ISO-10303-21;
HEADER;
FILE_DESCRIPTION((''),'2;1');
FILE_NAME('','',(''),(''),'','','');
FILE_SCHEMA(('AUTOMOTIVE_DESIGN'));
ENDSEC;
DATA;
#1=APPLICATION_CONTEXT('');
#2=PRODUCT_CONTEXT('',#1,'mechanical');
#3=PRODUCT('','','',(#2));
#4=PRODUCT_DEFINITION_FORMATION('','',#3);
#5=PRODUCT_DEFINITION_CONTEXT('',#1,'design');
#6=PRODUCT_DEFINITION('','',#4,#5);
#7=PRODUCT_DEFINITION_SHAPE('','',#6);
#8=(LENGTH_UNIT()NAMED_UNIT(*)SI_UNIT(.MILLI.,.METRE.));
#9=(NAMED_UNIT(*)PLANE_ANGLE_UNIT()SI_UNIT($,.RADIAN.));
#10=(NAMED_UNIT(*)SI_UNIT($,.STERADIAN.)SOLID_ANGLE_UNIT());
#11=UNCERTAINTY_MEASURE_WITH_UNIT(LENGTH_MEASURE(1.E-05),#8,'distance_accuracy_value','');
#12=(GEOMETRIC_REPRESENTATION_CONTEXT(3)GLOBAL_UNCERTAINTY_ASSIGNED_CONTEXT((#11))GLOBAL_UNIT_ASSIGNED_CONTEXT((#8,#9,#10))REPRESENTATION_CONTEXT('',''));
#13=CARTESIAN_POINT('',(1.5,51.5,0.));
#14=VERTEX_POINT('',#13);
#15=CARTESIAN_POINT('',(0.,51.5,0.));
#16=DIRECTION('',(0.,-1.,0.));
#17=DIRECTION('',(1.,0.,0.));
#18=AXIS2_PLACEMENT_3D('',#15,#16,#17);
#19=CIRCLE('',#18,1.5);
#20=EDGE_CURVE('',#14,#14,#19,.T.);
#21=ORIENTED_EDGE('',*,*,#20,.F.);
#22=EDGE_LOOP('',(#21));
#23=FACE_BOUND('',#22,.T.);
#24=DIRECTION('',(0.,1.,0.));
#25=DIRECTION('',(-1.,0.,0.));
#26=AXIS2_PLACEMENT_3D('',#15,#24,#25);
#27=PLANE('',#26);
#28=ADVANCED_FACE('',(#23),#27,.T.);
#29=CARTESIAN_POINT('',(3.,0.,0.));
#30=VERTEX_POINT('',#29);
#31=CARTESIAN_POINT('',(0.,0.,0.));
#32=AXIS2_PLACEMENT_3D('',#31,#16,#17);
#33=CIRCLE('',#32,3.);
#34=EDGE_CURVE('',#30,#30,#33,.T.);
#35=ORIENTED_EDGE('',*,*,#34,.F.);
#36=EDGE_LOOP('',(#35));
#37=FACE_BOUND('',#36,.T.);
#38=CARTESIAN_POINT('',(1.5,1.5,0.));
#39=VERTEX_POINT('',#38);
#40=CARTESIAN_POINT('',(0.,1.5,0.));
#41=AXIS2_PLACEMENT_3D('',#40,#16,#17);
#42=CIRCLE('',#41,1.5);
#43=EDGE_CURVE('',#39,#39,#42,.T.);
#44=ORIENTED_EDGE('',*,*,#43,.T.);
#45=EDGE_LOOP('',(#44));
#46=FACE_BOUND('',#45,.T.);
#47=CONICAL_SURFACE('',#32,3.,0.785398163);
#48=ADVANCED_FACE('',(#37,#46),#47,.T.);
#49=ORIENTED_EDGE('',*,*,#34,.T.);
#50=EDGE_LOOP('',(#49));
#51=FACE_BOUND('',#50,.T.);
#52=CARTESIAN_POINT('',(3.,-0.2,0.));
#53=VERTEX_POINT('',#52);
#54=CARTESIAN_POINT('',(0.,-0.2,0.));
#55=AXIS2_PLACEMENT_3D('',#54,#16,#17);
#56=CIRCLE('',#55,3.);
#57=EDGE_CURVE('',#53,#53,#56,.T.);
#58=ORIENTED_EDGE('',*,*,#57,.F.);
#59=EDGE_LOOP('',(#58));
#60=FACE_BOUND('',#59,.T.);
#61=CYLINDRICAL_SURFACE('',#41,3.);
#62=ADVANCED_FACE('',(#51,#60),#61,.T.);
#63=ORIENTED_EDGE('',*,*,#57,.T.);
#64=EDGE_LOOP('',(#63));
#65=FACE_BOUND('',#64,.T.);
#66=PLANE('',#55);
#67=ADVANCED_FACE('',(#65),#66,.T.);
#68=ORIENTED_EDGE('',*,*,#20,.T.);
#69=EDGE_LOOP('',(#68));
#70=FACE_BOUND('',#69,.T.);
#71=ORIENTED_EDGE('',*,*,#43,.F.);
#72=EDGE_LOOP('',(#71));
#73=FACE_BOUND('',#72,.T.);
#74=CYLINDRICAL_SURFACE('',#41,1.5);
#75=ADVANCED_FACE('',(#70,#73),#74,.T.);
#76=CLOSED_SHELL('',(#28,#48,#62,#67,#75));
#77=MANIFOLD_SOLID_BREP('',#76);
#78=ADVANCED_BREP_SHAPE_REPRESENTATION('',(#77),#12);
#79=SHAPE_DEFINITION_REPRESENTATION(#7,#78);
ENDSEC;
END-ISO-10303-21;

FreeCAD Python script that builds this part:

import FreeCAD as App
import Part
import Sketcher
Q = App.Units.Quantity

doc = App.newDocument("Part")
body = doc.addObject("PartDesign::Body", "Body")

sketch1 = body.newObject("Sketcher::SketchObject", "Sketch")
sketch1.AttachmentSupport = (doc.getObject("XY_Plane"), [""])
sketch1.MapMode = "FlatFace"
sketch1.addGeometry(Part.LineSegment(App.Vector(0, 51.5, 0), App.Vector(0, -0.2, 0)), False)
sketch1.addGeometry(Part.LineSegment(App.Vector(0, -0.2, 0), App.Vector(3, -0.2, 0)), False)
sketch1.addGeometry(Part.LineSegment(App.Vector(3, -0.2, 0), App.Vector(3, 0, 0)), False)
sketch1.addGeometry(Part.LineSegment(App.Vector(3, 0, 0), App.Vector(1.5, 1.5, 0)), False)
sketch1.addGeometry(Part.LineSegment(App.Vector(1.5, 1.5, 0), App.Vector(1.5, 51.5, 0)), False)
sketch1.addGeometry(Part.LineSegment(App.Vector(1.5, 51.5, 0), App.Vector(0, 51.5, 0)), False)
sketch1.addConstraint(Sketcher.Constraint("Coincident", 0, 2, 1, 1))
sketch1.addConstraint(Sketcher.Constraint("Coincident", 1, 2, 2, 1))
sketch1.addConstraint(Sketcher.Constraint("Coincident", 2, 2, 3, 1))
sketch1.addConstraint(Sketcher.Constraint("Coincident", 3, 2, 4, 1))
sketch1.addConstraint(Sketcher.Constraint("Coincident", 4, 2, 5, 1))
sketch1.addConstraint(Sketcher.Constraint("Coincident", 5, 2, 0, 1))
sketch1.addConstraint(Sketcher.Constraint("Vertical", 0))
sketch1.addConstraint(Sketcher.Constraint("Horizontal", 1))
sketch1.addConstraint(Sketcher.Constraint("Vertical", 2))
sketch1.addConstraint(Sketcher.Constraint("Vertical", 4))
sketch1.addConstraint(Sketcher.Constraint("Horizontal", 5))
sketch1.addConstraint(Sketcher.Constraint("PointOnObject", 0, 2, -2))
sketch1.addConstraint(Sketcher.Constraint("PointOnObject", 2, 2, -1))
sketch1.addConstraint(Sketcher.Constraint("DistanceX", 1, 1, 1, 2, Q("3 mm")))
sketch1.addConstraint(Sketcher.Constraint("DistanceY", 4, 1, 4, 2, Q("50 mm")))
sketch1.addConstraint(Sketcher.Constraint("Angle", 3, Q("135 deg")))
sketch1.addConstraint(Sketcher.Constraint("DistanceX", 5, 2, 5, 1, Q("1.5 mm")))
sketch1.addConstraint(Sketcher.Constraint("DistanceY", 0, 2, 0, 1, Q("51.7 mm")))
revolution = body.newObject("PartDesign::Revolution", "Revolution")
revolution.Profile = sketch1
revolution.ReferenceAxis = (sketch1, ["V_Axis"])
revolution.Angle = 360

doc.recompute()
